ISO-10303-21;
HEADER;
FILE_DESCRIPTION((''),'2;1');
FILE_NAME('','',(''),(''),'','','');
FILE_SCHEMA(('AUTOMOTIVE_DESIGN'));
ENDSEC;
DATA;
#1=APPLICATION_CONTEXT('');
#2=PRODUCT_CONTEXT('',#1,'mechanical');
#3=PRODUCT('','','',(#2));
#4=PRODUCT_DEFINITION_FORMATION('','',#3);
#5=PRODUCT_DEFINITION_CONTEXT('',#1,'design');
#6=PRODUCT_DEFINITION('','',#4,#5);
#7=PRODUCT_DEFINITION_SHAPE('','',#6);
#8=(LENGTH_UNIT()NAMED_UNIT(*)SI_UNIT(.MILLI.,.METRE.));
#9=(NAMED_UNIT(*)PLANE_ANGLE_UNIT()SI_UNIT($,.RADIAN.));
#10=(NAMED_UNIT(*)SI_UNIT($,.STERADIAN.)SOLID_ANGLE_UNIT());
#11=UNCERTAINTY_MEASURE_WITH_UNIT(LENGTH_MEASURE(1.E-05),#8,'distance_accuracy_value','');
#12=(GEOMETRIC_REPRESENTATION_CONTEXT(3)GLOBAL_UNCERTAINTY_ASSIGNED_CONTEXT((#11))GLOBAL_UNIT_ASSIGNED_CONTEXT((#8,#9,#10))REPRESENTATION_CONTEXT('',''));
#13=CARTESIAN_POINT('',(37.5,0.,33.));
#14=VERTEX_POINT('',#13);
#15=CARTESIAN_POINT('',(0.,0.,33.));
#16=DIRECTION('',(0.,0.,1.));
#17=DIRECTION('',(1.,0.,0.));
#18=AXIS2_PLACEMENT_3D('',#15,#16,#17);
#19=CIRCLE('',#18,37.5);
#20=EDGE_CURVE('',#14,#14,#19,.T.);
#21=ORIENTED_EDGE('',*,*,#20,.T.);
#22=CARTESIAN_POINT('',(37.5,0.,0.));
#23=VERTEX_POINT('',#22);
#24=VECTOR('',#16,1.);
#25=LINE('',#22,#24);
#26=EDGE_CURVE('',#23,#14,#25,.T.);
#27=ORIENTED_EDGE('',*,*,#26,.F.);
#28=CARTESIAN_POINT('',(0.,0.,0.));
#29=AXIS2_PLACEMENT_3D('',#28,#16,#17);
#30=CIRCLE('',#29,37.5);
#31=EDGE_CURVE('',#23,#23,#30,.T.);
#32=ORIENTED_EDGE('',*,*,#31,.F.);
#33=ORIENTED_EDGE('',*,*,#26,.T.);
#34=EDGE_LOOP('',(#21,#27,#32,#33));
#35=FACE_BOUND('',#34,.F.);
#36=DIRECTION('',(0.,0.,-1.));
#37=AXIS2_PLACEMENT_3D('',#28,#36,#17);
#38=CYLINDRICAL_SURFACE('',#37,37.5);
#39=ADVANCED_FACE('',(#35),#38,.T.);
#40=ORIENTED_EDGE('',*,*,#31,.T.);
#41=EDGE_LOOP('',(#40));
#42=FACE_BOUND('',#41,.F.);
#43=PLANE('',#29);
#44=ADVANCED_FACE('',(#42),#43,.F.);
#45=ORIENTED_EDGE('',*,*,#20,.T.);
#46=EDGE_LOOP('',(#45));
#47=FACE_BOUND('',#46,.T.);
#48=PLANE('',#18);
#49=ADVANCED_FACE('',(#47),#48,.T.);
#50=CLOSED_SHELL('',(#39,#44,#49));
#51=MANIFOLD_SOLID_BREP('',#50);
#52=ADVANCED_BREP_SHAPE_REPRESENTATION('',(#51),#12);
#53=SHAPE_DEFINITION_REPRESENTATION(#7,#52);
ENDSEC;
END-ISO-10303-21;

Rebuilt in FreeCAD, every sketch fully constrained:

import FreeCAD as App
import Part
import Sketcher

doc = App.newDocument("Part")
body = doc.addObject("PartDesign::Body", "Body")

sketch1 = doc.addObject("Sketcher::SketchObject", "Sketch")
body.addObject(sketch1)
sketch1.AttachmentSupport = (doc.XY_Plane, [""])
sketch1.MapMode = "FlatFace"
sketch1.addGeometry(Part.Circle(App.Vector(0, 0, 0), App.Vector(0, 0, 1), 38), False)
sketch1.addConstraint(Sketcher.Constraint("Coincident", 0, 3, -1, 1))
sketch1.addConstraint(Sketcher.Constraint("Diameter", 0, 75.0))
pad1 = doc.addObject("PartDesign::Pad", "Pad")
body.addObject(pad1)
pad1.Profile = sketch1
pad1.Length = 33

doc.recompute()
